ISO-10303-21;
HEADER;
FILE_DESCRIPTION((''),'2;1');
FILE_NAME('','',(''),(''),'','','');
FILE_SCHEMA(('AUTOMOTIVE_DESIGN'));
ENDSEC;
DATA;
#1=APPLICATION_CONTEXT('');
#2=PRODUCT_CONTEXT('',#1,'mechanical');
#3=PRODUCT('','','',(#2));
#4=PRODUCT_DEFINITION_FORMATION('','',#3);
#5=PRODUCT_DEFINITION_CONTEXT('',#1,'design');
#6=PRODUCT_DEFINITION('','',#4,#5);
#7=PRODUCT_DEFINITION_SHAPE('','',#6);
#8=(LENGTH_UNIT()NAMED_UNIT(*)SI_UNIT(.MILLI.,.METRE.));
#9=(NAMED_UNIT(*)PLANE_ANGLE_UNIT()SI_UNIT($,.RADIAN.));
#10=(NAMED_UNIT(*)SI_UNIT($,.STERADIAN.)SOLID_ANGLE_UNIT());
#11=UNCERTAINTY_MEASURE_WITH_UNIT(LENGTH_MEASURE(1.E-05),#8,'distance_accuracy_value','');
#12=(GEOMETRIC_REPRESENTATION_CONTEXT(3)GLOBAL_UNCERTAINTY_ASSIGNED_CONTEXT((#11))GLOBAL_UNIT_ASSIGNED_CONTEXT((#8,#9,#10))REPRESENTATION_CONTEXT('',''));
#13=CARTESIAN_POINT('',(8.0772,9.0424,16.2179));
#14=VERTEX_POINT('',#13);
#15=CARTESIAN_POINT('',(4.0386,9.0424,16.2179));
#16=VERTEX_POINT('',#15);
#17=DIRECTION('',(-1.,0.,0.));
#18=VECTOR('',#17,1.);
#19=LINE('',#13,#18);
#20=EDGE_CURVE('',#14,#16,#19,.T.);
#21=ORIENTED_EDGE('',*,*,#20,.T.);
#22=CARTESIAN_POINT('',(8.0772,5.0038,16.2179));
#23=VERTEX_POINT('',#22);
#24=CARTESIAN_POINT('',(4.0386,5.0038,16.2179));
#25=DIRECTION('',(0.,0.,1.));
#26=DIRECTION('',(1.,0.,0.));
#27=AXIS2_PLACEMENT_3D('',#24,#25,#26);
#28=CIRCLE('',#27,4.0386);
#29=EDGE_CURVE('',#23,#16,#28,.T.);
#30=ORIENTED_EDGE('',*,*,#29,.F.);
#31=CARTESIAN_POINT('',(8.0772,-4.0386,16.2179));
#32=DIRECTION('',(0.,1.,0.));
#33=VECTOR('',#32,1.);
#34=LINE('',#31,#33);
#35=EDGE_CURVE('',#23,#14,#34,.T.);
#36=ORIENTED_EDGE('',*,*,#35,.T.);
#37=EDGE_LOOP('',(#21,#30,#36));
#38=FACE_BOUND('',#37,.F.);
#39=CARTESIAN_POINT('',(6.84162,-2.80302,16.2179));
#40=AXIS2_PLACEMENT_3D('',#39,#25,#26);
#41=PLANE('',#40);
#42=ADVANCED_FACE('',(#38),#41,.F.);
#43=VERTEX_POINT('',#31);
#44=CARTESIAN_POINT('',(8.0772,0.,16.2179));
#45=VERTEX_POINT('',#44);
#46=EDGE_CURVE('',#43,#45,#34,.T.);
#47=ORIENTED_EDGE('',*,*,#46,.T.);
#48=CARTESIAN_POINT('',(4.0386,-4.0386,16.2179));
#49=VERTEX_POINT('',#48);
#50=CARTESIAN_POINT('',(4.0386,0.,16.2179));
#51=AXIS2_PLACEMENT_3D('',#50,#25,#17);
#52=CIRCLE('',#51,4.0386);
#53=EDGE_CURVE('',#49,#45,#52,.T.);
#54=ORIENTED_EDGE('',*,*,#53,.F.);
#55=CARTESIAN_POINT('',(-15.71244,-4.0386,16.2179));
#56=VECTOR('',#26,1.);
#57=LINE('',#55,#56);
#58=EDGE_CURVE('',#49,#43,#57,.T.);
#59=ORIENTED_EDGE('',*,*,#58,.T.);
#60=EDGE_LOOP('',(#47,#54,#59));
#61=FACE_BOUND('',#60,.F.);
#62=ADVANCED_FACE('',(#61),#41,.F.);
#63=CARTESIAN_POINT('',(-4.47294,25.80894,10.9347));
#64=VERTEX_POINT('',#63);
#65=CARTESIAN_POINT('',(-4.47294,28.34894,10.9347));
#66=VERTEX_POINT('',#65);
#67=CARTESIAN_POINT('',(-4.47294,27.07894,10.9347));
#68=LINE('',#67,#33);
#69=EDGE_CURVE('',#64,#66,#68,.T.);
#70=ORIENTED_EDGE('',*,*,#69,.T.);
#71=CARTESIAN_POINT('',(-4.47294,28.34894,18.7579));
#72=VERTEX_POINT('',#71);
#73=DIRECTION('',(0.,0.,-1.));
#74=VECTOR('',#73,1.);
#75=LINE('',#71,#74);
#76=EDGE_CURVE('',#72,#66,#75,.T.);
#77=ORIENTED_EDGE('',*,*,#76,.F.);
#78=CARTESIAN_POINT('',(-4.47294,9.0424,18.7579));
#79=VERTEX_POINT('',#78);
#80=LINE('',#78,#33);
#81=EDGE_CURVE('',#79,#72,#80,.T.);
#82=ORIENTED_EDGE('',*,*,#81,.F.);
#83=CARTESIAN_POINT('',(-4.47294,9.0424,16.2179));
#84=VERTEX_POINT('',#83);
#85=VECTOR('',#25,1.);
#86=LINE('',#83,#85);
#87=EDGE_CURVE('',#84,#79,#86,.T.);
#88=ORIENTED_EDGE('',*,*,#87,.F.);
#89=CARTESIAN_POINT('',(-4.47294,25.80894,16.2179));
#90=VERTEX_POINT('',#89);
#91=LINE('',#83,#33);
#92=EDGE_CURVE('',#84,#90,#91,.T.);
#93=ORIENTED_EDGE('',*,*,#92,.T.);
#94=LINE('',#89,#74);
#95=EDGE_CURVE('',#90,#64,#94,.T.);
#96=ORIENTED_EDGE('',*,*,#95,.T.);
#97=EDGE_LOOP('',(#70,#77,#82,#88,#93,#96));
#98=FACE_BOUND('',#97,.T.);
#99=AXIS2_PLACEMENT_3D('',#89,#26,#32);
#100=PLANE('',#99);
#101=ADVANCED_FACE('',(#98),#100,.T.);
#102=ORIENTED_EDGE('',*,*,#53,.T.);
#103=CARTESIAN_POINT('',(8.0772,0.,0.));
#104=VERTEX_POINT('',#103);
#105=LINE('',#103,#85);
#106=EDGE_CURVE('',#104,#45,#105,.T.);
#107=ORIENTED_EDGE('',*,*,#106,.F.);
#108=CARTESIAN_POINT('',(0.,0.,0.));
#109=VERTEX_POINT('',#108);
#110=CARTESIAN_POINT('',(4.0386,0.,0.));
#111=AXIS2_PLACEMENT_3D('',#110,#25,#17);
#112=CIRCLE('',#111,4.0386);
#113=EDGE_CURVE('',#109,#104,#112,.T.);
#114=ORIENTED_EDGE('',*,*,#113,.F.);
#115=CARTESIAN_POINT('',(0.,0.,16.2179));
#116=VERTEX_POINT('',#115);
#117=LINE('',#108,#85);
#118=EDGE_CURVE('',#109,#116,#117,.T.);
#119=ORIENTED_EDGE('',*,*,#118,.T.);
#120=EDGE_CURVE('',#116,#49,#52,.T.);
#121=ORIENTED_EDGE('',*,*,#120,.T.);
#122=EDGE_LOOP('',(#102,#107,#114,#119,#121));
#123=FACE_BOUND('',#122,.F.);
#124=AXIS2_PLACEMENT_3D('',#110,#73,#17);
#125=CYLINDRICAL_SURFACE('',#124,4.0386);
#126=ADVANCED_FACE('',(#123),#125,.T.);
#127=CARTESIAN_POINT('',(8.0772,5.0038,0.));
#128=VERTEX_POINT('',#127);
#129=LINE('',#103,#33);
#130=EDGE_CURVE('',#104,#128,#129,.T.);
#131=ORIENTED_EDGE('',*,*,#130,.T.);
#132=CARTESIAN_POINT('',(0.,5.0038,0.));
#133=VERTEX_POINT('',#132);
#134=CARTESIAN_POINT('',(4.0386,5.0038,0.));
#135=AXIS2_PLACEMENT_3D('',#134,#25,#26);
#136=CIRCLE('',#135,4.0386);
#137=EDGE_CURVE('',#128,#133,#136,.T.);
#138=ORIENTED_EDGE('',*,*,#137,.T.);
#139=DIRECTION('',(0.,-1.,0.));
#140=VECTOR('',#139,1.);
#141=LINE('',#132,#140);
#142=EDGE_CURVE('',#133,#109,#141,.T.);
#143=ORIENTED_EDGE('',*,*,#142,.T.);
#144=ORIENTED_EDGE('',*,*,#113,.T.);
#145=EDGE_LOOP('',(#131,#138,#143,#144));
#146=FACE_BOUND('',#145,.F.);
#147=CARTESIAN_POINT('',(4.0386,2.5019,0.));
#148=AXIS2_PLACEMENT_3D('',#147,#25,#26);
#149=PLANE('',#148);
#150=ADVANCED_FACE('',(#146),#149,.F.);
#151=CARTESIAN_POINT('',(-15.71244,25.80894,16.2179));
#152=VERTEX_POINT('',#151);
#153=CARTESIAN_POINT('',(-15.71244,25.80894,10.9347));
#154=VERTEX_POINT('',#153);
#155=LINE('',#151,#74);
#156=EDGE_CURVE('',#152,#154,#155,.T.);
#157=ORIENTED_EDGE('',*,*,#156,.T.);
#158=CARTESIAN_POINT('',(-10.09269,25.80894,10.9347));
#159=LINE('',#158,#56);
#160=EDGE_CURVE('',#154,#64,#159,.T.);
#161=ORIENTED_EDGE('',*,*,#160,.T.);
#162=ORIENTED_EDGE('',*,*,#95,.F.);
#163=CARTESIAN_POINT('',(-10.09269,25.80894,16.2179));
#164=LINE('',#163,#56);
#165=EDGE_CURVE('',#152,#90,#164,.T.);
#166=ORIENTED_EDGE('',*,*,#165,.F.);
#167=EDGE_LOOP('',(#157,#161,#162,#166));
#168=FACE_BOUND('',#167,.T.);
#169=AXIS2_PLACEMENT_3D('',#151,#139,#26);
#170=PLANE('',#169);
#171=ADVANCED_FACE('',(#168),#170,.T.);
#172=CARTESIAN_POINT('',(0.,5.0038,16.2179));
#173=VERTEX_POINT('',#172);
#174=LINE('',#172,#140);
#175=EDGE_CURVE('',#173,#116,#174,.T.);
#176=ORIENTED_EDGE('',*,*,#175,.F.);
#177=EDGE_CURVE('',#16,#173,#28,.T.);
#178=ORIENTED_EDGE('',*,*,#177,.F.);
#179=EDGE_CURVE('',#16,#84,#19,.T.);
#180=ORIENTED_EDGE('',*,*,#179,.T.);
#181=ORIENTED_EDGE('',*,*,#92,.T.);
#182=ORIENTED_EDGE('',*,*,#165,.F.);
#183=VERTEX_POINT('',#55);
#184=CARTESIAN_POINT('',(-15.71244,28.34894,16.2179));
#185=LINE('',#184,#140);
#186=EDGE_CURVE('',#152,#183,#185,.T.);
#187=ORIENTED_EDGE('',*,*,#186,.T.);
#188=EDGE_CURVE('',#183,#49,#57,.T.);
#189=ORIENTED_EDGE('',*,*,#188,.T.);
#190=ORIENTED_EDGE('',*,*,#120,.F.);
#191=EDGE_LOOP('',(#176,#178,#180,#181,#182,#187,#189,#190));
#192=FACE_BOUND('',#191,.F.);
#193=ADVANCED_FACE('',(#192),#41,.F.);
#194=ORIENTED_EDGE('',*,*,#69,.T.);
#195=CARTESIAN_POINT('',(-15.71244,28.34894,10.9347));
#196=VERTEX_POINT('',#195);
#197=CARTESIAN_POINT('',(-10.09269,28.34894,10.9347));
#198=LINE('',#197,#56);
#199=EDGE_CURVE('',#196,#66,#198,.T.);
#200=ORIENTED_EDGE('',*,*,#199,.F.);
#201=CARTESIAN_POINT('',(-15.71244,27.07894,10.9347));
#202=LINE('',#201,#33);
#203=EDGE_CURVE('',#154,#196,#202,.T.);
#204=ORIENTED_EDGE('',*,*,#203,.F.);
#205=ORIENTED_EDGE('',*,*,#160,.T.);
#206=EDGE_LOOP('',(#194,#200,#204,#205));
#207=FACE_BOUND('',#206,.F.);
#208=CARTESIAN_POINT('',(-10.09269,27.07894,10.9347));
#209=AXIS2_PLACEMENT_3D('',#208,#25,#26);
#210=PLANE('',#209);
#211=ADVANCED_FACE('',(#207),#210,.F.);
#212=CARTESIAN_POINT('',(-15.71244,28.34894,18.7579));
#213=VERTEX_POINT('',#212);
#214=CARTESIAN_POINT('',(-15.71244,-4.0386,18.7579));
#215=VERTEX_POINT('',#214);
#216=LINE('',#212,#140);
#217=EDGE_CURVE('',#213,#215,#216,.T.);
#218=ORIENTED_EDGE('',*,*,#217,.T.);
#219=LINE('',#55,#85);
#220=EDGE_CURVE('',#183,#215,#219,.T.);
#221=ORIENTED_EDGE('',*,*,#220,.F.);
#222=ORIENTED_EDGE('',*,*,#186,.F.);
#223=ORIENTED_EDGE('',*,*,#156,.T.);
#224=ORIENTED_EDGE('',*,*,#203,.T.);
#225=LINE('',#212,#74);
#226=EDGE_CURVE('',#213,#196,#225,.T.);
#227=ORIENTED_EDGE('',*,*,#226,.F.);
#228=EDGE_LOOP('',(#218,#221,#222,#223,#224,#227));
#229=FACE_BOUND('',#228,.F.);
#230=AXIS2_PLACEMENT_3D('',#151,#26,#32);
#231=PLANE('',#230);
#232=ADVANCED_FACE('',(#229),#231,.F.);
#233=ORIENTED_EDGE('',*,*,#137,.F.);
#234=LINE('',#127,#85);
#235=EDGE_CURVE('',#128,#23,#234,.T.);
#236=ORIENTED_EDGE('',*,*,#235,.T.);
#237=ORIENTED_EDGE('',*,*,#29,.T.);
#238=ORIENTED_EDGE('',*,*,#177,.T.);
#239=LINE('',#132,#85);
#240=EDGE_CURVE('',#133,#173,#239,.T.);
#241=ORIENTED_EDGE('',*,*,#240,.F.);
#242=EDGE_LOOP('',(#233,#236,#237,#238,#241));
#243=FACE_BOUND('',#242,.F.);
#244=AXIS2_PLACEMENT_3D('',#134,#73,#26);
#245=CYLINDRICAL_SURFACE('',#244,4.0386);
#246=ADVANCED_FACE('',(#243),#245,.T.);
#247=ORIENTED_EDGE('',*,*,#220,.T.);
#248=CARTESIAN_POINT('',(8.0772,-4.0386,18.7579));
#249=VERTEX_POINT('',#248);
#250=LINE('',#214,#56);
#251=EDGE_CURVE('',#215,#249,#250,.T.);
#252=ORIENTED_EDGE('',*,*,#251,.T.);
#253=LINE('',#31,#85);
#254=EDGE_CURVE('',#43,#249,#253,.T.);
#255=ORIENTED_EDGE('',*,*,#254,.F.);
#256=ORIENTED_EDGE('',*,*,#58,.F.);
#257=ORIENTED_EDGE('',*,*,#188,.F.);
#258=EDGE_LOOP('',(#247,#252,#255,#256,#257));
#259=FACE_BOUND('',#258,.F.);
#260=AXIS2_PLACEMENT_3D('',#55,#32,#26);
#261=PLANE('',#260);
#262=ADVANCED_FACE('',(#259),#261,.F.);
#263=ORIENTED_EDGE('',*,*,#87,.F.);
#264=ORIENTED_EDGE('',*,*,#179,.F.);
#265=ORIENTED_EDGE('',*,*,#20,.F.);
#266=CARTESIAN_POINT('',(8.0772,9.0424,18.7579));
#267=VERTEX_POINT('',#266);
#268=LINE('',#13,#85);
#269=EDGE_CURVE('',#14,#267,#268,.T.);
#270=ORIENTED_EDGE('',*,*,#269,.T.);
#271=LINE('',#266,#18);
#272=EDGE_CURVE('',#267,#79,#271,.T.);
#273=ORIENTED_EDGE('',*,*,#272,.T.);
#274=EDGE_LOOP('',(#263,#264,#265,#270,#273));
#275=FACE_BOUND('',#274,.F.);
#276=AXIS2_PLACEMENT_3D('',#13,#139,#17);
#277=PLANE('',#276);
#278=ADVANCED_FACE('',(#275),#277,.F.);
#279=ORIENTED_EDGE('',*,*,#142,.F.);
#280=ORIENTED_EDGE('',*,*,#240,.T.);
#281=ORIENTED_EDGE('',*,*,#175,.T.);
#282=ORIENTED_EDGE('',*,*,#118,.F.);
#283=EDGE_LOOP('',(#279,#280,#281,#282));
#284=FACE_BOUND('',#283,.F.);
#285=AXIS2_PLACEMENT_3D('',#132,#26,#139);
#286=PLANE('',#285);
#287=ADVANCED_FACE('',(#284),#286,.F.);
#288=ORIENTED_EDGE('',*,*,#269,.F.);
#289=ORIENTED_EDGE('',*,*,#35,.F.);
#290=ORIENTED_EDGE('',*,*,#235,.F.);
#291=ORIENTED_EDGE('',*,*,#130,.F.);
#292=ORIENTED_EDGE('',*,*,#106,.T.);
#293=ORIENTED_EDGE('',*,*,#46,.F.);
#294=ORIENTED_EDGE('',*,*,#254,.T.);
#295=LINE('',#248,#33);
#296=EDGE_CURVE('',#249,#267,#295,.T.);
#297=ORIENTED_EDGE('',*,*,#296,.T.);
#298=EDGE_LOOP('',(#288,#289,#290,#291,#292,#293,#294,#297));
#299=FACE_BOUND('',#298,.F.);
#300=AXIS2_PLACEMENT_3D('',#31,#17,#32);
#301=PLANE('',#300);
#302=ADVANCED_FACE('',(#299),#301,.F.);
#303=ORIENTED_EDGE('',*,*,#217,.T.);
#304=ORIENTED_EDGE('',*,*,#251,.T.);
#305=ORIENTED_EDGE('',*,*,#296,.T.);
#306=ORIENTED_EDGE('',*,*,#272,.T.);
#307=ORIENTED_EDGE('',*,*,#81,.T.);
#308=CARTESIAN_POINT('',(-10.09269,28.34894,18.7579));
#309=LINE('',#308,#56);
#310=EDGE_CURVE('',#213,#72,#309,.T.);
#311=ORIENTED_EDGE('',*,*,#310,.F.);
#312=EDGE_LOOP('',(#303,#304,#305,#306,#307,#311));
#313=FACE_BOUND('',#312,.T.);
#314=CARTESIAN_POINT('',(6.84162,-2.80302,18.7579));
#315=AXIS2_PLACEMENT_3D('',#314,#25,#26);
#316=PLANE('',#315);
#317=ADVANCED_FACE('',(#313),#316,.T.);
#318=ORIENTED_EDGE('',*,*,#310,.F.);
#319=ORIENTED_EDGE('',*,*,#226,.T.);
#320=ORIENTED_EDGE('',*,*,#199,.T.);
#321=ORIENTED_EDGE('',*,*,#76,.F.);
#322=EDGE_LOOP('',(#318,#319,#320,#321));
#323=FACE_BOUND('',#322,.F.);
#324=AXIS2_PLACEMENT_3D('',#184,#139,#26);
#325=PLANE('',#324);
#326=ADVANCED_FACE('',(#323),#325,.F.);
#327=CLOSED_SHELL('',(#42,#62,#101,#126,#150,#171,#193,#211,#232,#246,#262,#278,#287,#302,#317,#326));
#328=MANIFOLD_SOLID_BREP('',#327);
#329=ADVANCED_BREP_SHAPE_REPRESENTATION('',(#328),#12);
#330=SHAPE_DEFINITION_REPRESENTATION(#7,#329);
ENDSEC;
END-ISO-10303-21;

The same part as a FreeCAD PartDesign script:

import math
import FreeCAD as App
import Part
import Sketcher

V = App.Vector
Q = App.Units.Quantity


def add_polygon(sketch, points):
    """Adds a closed chain of lines whose ends are joined by coincident constraints."""
    first, n = sketch.GeometryCount, len(points)
    for a, b in zip(points, points[1:] + points[:1]):
        sketch.addGeometry(Part.LineSegment(App.Vector(*a, 0), App.Vector(*b, 0)), False)
    for i in range(n):
        sketch.addConstraint(Sketcher.Constraint("Coincident", first + i, 2, first + (i + 1) % n, 1))

doc = App.newDocument("Part")
params = doc.addObject("Spreadsheet::Sheet", "Params")
for row, (alias, value) in enumerate([
    ("sketch1_radius", "0.159 in"),
    ("sketch1_height", "0.197 in"),
    ("pad1_length", "0.6385 in"),
    ("sketch2_height", "0.515 in"),
    ("pad2_length", "0.1 in"),
    ("sketch3_height", "0.1 in"),
    ("pad3_length", "0.208 in"),
], start=1):
    params.set(f"A{row}", alias)
    params.set(f"B{row}", "=" + value)
    params.setAlias(f"B{row}", alias)

body = doc.addObject("PartDesign::Body", "Body")

# Sketch on XY plane
sketch1 = body.newObject("Sketcher::SketchObject", "Sketch")
sketch1.AttachmentSupport = (doc.getObject("XY_Plane"), [""])
sketch1.MapMode = "FlatFace"
sketch1.addGeometry(Part.LineSegment(V(0, 5.0038, 0), V(0, 0, 0)), False)
sketch1.addGeometry(Part.ArcOfCircle(Part.Circle(V(4.0386, 0, 0), V(0, 0, 1), 4.0386), math.radians(180), math.radians(360)), False)
sketch1.addGeometry(Part.LineSegment(V(8.0772, 0, 0), V(8.0772, 5.0038, 0)), False)
sketch1.addGeometry(Part.ArcOfCircle(Part.Circle(V(4.0386, 5.0038, 0), V(0, 0, 1), 4.0386), math.radians(0), math.radians(180)), False)
sketch1.addConstraint(Sketcher.Constraint("Tangent", 0, 2, 1, 1))
sketch1.addConstraint(Sketcher.Constraint("Tangent", 1, 2, 2, 1))
sketch1.addConstraint(Sketcher.Constraint("Tangent", 2, 2, 3, 1))
sketch1.addConstraint(Sketcher.Constraint("Tangent", 3, 2, 0, 1))
sketch1.addConstraint(Sketcher.Constraint("Vertical", 0))
sketch1.addConstraint(Sketcher.Constraint("Vertical", 2))
sketch1.addConstraint(Sketcher.Constraint("Coincident", 0, 2, -1, 1))
sketch1.addConstraint(Sketcher.Constraint("Radius", 1, Q("0.159 in")))
sketch1.addConstraint(Sketcher.Constraint("DistanceY", 0, 2, 0, 1, Q("0.197 in")))
sketch1.setExpression("Constraints[7]", "Params.sketch1_radius")
sketch1.setExpression("Constraints[8]", "Params.sketch1_height")
pad1 = body.newObject("PartDesign::Pad", "Pad")
pad1.Profile = sketch1
pad1.setExpression("Length", "Params.pad1_length")

# Sketch on XY plane
sketch2 = body.newObject("Sketcher::SketchObject", "Sketch001")
sketch2.AttachmentSupport = (doc.getObject("XY_Plane"), [""])
sketch2.MapMode = "FlatFace"
sketch2.AttachmentOffset = App.Placement(V(0, 0, 0.6385 * 25.4), App.Rotation())
add_polygon(sketch2, [(8.0772, -4.0386), (8.0772, 9.0424), (-4.47294, 9.0424), (-4.47294, 28.34894), (-15.71244, 28.34894), (-15.71244, -4.0386)])  # lines 0-5
sketch2.addConstraint(Sketcher.Constraint("Vertical", 0))
sketch2.addConstraint(Sketcher.Constraint("Horizontal", 1))
sketch2.addConstraint(Sketcher.Constraint("Vertical", 2))
sketch2.addConstraint(Sketcher.Constraint("Horizontal", 3))
sketch2.addConstraint(Sketcher.Constraint("Vertical", 4))
sketch2.addConstraint(Sketcher.Constraint("Horizontal", 5))
sketch2.addConstraint(Sketcher.Constraint("DistanceY", 0, 1, 0, 2, Q("0.515 in")))
sketch2.addConstraint(Sketcher.Constraint("DistanceX", 1, 2, 1, 1, Q("0.4941 in")))
sketch2.addConstraint(Sketcher.Constraint("DistanceX", 3, 2, 3, 1, Q("0.4425 in")))
sketch2.addConstraint(Sketcher.Constraint("DistanceY", 2, 1, 2, 2, Q("0.7601 in")))
sketch2.addConstraint(Sketcher.Constraint("DistanceX", -1, 1, 0, 2, Q("0.318 in")))
sketch2.addConstraint(Sketcher.Constraint("DistanceY", -1, 1, 0, 2, Q("0.356 in")))
sketch2.setExpression("Constraints[12]", "Params.sketch2_height")
pad2 = body.newObject("PartDesign::Pad", "Pad001")
pad2.Profile = sketch2
pad2.setExpression("Length", "Params.pad2_length")

# Sketch on XY plane
sketch3 = body.newObject("Sketcher::SketchObject", "Sketch002")
sketch3.AttachmentSupport = (doc.getObject("XY_Plane"), [""])
sketch3.MapMode = "FlatFace"
sketch3.AttachmentOffset = App.Placement(V(0, 0, 0.6385 * 25.4), App.Rotation())
add_polygon(sketch3, [(-15.71244, 28.34894), (-15.71244, 25.80894), (-4.47294, 25.80894), (-4.47294, 28.34894)])  # lines 0-3
sketch3.addConstraint(Sketcher.Constraint("Vertical", 0))
sketch3.addConstraint(Sketcher.Constraint("Horizontal", 1))
sketch3.addConstraint(Sketcher.Constraint("Vertical", 2))
sketch3.addConstraint(Sketcher.Constraint("Horizontal", 3))
sketch3.addConstraint(Sketcher.Constraint("DistanceY", 0, 2, 0, 1, Q("0.1 in")))
sketch3.addConstraint(Sketcher.Constraint("DistanceX", 1, 1, 1, 2, Q("0.4425 in")))
sketch3.addConstraint(Sketcher.Constraint("DistanceX", 0, 2, -1, 1, Q("0.6186 in")))
sketch3.addConstraint(Sketcher.Constraint("DistanceY", -1, 1, 0, 2, Q("1.0161 in")))
sketch3.setExpression("Constraints[8]", "Params.sketch3_height")
pad3 = body.newObject("PartDesign::Pad", "Pad002")
pad3.Profile = sketch3
pad3.setExpression("Length", "Params.pad3_length")
pad3.Reversed = True

doc.recompute()
